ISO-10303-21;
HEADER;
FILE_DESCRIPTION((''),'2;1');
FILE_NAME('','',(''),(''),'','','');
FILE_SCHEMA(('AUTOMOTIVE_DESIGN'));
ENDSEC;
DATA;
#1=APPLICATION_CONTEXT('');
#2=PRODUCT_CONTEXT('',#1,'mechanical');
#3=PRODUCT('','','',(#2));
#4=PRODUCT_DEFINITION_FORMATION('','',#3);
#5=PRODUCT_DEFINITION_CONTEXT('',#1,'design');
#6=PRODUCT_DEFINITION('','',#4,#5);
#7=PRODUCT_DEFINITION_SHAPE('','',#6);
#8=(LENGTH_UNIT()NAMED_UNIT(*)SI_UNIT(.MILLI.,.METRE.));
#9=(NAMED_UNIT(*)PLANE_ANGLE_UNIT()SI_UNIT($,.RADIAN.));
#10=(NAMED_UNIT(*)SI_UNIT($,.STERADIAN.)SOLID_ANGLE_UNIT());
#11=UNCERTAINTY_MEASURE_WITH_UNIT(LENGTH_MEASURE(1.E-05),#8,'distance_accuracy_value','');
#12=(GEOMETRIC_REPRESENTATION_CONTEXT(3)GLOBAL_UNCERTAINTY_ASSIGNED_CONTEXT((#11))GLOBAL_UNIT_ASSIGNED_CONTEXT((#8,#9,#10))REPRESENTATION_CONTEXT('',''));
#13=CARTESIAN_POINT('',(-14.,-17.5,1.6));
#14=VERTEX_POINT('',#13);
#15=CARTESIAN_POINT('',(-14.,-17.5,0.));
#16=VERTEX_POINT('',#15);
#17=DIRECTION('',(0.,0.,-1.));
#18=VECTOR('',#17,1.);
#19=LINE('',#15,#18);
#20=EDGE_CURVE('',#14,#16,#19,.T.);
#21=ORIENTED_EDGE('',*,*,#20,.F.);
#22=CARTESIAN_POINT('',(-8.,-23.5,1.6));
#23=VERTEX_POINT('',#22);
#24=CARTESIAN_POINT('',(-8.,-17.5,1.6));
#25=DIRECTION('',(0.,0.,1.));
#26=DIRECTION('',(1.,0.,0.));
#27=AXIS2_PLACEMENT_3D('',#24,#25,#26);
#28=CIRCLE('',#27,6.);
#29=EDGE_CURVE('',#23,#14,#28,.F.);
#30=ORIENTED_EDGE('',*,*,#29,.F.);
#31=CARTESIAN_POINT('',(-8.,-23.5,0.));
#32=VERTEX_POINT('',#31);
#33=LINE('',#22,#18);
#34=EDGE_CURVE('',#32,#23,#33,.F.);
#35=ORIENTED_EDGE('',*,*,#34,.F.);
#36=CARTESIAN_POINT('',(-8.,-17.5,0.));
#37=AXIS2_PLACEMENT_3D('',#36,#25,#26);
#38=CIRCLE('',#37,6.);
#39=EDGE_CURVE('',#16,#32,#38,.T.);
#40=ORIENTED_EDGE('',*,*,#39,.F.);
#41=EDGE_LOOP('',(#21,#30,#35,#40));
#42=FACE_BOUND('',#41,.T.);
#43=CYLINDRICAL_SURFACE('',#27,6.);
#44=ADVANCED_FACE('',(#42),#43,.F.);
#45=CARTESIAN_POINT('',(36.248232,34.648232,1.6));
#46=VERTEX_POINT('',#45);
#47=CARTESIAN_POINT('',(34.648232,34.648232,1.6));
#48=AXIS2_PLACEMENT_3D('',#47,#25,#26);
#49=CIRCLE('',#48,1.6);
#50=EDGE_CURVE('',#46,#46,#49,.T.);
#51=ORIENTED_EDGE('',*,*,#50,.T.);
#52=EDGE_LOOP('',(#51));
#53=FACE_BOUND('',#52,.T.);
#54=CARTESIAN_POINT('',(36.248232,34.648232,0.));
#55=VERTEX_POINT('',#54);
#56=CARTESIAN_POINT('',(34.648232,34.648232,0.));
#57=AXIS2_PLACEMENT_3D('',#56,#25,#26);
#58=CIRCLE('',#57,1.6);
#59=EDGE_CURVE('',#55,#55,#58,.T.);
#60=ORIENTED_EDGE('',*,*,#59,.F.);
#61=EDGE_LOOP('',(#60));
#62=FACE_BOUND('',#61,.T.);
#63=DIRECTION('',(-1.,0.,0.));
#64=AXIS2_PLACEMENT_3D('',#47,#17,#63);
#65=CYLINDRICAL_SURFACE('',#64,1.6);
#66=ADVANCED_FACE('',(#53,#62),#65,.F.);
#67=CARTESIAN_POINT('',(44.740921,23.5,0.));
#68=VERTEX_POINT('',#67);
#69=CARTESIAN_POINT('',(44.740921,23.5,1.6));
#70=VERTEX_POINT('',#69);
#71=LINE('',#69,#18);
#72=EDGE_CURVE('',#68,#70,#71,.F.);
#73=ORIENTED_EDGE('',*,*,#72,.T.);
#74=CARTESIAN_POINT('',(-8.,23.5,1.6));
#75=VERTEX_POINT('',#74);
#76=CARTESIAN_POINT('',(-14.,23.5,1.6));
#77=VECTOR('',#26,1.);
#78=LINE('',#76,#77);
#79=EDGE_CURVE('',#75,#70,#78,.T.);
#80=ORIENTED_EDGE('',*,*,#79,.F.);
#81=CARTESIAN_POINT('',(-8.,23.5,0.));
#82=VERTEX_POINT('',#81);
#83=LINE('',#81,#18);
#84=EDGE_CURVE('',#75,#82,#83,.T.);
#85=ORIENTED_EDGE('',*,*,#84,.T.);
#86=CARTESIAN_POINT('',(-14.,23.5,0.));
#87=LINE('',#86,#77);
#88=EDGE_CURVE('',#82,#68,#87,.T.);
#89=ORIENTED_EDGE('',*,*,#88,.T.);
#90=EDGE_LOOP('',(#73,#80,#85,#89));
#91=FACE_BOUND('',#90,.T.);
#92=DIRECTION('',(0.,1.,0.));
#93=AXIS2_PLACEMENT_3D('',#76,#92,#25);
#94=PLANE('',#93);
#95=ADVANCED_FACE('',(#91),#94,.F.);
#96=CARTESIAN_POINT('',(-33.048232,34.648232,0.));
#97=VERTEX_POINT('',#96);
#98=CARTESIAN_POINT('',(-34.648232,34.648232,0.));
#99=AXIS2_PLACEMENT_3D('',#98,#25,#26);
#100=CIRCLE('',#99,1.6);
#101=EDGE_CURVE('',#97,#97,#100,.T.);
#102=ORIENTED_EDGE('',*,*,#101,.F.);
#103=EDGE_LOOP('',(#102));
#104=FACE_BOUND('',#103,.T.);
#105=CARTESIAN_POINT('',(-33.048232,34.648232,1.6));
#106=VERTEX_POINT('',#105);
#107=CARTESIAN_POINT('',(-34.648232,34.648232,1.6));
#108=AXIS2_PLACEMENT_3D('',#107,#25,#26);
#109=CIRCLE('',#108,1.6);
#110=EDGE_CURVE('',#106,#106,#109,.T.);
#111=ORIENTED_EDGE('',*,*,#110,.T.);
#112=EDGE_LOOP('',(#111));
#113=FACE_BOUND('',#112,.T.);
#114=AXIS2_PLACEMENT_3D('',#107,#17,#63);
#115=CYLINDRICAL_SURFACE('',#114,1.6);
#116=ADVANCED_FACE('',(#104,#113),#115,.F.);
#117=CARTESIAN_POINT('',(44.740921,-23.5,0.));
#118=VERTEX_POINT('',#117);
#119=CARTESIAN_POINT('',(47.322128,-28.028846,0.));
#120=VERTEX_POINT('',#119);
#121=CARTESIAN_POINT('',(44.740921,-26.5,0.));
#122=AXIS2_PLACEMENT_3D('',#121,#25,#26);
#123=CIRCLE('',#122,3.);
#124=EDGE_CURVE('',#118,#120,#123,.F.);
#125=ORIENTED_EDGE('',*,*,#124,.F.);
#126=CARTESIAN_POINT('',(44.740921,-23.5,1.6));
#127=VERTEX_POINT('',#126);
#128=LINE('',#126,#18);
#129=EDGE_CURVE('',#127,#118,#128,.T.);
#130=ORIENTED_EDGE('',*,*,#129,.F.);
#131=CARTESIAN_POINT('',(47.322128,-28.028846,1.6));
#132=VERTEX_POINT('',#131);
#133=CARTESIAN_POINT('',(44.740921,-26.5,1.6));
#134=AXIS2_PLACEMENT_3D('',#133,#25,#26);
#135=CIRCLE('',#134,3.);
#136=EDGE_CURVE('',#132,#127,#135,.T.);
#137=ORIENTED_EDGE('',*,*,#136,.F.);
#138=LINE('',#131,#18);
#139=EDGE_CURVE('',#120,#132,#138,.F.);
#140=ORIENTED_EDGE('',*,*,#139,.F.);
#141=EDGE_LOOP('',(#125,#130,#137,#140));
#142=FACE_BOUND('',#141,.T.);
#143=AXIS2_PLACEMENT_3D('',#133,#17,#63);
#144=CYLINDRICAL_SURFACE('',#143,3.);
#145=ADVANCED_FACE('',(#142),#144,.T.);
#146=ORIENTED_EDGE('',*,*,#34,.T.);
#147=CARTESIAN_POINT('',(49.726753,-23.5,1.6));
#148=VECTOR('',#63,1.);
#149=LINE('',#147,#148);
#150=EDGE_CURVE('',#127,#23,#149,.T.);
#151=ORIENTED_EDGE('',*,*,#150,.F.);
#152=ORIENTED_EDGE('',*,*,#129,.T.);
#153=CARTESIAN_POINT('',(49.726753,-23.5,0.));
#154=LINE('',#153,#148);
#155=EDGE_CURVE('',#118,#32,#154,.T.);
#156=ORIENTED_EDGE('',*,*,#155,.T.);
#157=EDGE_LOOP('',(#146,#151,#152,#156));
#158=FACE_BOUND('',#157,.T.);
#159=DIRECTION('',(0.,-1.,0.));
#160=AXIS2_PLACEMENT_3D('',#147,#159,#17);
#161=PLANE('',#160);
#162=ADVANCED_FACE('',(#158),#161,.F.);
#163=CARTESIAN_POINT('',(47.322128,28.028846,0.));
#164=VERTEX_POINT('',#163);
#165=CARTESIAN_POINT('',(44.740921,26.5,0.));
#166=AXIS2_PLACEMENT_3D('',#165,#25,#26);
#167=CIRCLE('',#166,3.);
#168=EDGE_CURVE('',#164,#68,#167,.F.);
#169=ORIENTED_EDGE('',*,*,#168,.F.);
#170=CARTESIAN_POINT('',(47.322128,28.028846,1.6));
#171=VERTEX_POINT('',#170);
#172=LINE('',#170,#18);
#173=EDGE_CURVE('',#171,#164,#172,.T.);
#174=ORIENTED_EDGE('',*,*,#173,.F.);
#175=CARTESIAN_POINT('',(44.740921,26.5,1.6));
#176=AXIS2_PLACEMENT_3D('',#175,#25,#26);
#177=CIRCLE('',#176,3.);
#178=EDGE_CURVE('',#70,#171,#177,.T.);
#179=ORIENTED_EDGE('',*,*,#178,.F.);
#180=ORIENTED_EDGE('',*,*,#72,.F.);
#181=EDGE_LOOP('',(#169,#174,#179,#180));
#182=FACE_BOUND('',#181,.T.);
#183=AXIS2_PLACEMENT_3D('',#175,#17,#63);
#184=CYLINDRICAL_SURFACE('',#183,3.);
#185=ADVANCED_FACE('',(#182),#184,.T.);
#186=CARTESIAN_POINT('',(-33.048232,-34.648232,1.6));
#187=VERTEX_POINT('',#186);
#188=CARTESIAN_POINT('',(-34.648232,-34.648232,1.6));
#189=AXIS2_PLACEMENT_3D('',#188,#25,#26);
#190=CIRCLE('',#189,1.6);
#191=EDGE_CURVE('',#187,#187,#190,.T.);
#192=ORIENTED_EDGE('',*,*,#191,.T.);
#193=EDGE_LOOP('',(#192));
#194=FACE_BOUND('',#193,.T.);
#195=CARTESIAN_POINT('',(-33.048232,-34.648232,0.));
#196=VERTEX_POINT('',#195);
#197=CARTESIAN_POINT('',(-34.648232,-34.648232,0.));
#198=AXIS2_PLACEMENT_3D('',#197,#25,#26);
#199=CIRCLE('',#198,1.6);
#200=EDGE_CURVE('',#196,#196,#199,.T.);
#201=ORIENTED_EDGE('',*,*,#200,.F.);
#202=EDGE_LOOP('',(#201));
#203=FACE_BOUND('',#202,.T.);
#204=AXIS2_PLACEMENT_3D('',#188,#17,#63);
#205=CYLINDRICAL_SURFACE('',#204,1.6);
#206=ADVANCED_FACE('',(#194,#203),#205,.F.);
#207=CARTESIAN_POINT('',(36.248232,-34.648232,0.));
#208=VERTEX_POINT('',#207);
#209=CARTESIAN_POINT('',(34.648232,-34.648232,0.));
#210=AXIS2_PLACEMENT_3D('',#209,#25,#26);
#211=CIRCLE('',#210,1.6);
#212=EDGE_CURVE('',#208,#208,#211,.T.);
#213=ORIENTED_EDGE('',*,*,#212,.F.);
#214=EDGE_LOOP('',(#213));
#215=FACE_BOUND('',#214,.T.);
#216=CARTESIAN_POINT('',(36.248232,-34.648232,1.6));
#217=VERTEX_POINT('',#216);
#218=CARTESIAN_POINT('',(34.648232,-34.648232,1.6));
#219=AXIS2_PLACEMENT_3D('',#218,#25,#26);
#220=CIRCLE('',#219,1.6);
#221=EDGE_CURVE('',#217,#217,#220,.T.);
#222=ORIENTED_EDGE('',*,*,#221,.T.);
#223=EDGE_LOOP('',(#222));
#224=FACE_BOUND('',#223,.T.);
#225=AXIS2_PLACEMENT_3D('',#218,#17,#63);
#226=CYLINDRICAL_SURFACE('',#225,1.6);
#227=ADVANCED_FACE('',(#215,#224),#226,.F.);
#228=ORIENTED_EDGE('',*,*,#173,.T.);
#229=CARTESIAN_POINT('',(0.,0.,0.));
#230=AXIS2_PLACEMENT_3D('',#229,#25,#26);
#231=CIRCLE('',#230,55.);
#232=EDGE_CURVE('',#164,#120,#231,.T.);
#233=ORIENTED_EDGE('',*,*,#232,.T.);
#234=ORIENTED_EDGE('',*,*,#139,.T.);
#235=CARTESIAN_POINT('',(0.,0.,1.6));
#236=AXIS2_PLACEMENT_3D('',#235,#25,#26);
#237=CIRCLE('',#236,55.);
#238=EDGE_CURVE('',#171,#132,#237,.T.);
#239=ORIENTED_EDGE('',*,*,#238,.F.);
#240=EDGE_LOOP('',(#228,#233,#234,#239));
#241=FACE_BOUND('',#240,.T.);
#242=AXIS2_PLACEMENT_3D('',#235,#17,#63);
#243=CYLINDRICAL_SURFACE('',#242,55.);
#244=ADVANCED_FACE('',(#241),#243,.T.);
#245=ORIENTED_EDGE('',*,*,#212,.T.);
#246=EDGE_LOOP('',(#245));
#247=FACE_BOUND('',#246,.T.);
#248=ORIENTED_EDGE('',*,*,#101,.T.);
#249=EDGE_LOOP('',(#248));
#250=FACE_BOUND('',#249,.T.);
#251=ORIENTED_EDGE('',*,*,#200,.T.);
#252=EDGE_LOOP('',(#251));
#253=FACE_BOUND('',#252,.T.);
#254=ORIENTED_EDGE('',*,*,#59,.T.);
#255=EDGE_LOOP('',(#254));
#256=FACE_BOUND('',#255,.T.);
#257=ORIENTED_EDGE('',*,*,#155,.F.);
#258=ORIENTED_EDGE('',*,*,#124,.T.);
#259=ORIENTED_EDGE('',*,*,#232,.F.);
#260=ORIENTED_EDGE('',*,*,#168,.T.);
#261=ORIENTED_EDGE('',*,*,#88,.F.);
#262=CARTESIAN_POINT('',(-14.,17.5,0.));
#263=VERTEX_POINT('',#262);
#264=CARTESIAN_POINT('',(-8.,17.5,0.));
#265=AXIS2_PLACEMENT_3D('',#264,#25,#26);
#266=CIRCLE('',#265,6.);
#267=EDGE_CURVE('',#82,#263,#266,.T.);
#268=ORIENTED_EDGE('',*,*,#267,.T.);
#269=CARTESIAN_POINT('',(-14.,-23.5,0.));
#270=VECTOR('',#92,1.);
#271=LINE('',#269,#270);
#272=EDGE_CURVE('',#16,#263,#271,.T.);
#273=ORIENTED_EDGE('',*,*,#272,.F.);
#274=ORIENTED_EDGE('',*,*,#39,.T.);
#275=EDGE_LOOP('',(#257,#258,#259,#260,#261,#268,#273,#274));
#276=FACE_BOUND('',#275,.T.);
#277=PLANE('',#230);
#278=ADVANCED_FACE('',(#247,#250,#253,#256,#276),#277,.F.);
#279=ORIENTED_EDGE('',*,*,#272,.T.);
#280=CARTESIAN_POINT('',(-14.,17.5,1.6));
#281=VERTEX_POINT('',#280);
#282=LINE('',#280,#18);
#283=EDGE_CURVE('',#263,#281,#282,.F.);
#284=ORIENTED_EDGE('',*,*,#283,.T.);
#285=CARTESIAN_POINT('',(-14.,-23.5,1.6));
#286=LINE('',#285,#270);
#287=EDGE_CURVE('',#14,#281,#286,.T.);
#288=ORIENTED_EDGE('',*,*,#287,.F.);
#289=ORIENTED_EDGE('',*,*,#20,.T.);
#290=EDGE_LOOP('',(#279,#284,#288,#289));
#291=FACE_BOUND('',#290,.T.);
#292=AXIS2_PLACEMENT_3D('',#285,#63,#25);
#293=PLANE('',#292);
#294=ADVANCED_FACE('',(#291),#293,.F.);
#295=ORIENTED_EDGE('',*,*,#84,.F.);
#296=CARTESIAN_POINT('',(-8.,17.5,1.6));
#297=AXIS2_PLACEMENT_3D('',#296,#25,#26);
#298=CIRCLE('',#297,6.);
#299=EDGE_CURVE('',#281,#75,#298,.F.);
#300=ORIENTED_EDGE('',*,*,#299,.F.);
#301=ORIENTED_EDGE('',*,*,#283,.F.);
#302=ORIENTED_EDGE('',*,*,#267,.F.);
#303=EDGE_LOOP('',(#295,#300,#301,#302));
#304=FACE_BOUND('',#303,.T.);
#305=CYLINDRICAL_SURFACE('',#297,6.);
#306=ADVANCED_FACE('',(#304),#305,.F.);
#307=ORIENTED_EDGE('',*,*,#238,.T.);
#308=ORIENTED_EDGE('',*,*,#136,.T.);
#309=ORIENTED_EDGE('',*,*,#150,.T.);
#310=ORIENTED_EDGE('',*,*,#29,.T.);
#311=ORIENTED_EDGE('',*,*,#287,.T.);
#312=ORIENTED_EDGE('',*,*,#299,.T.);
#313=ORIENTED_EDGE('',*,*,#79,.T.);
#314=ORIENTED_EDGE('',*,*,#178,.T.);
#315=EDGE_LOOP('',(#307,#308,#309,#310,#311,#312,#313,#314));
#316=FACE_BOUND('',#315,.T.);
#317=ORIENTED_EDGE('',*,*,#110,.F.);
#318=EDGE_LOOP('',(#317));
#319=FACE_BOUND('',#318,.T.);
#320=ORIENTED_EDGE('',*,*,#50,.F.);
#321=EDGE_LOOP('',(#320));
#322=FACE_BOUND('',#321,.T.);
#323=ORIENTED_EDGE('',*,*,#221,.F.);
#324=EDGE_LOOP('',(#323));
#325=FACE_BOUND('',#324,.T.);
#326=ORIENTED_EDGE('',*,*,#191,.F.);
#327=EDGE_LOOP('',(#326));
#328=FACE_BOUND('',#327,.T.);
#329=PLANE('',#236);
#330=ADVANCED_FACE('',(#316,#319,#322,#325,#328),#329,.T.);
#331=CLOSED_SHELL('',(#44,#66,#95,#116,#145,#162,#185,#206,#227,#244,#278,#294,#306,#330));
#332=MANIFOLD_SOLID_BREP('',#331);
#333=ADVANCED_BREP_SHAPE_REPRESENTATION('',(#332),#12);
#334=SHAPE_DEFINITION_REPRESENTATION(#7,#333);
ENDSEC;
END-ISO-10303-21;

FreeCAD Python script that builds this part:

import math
import FreeCAD as App
import Part
import Sketcher


def edges_at(feature, points):
    """Names of the edges that pass closest to the given points."""
    edges = feature.Shape.Edges
    near = lambda p: min(range(len(edges)), key=lambda i: edges[i].distToShape(Part.Vertex(*p))[0])
    return sorted({f"Edge{near(p) + 1}" for p in points})

doc = App.newDocument("Part")
body = doc.addObject("PartDesign::Body", "Body")

# Sketch on XY plane
sketch1 = body.newObject("Sketcher::SketchObject", "Sketch")
sketch1.AttachmentSupport = (doc.getObject("XY_Plane"), [""])
sketch1.MapMode = "FlatFace"
sketch1.addGeometry([
    Part.LineSegment(App.Vector(49.7, -23.5, 0), App.Vector(-14, -23.5, 0)),  # 0
    Part.LineSegment(App.Vector(-14, -23.5, 0), App.Vector(-14, 23.5, 0)),  # 1
    Part.LineSegment(App.Vector(-14, 23.5, 0), App.Vector(49.7, 23.5, 0)),  # 2
    Part.ArcOfCircle(Part.Circle(App.Vector(0, 0, 0), App.Vector(0, 0, 1), 55), math.radians(25), math.radians(335)),  # 3
    Part.Circle(App.Vector(-34.6, -34.6, 0), App.Vector(0, 0, 1), 1.6),  # 4
    Part.Circle(App.Vector(34.6, -34.6, 0), App.Vector(0, 0, 1), 1.6),  # 5
    Part.Circle(App.Vector(-34.6, 34.6, 0), App.Vector(0, 0, 1), 1.6),  # 6
    Part.Circle(App.Vector(34.6, 34.6, 0), App.Vector(0, 0, 1), 1.6),  # 7
], False)
sketch1.addConstraint([
    Sketcher.Constraint("Coincident", 0, 2, 1, 1),
    Sketcher.Constraint("Coincident", 1, 2, 2, 1),
    Sketcher.Constraint("Coincident", 2, 2, 3, 1),
    Sketcher.Constraint("Coincident", 3, 2, 0, 1),
    Sketcher.Constraint("Horizontal", 0),
    Sketcher.Constraint("Vertical", 1),
    Sketcher.Constraint("Horizontal", 2),
    Sketcher.Constraint("Coincident", 3, 3, -1, 1),
    Sketcher.Constraint("Equal", 4, 5),
    Sketcher.Constraint("Equal", 5, 6),
    Sketcher.Constraint("Equal", 6, 7),
    Sketcher.Constraint("Symmetric", 5, 3, 6, 3, -1, 1),
    Sketcher.Constraint("Symmetric", 4, 3, 7, 3, -1, 1),
    Sketcher.Constraint("Symmetric", 4, 3, 5, 3, -2),
    Sketcher.Constraint("Vertical", 2, 2, 3, 2),
    Sketcher.Constraint("Radius", 3, 55.0),
    Sketcher.Constraint("Diameter", 4, 3.2),
    Sketcher.Constraint("DistanceY", 1, 1, 1, 2, 47.0),
    Sketcher.Constraint("DistanceX", 0, 2, -1, 1, 14.0),
    Sketcher.Constraint("DistanceX", 7, 3, 2, 2, 15.078521),
    Sketcher.Constraint("DistanceY", 4, 3, -1, 1, 34.648232),
])
pad1 = body.newObject("PartDesign::Pad", "Pad")
pad1.Profile = sketch1
pad1.Length = 1.6
doc.recompute()

fillet = body.newObject("PartDesign::Fillet", "Fillet")
fillet.Base = (pad1, edges_at(pad1, [(-14, 23.5, 0.8), (-14, -23.5, 0.8)]))
fillet.Radius = 6
doc.recompute()

fillet2 = body.newObject("PartDesign::Fillet", "Fillet001")
fillet2.Base = (fillet, edges_at(fillet, [(49.727, 23.5, 0.8), (49.727, -23.5, 0.8)]))
fillet2.Radius = 3

doc.recompute()
